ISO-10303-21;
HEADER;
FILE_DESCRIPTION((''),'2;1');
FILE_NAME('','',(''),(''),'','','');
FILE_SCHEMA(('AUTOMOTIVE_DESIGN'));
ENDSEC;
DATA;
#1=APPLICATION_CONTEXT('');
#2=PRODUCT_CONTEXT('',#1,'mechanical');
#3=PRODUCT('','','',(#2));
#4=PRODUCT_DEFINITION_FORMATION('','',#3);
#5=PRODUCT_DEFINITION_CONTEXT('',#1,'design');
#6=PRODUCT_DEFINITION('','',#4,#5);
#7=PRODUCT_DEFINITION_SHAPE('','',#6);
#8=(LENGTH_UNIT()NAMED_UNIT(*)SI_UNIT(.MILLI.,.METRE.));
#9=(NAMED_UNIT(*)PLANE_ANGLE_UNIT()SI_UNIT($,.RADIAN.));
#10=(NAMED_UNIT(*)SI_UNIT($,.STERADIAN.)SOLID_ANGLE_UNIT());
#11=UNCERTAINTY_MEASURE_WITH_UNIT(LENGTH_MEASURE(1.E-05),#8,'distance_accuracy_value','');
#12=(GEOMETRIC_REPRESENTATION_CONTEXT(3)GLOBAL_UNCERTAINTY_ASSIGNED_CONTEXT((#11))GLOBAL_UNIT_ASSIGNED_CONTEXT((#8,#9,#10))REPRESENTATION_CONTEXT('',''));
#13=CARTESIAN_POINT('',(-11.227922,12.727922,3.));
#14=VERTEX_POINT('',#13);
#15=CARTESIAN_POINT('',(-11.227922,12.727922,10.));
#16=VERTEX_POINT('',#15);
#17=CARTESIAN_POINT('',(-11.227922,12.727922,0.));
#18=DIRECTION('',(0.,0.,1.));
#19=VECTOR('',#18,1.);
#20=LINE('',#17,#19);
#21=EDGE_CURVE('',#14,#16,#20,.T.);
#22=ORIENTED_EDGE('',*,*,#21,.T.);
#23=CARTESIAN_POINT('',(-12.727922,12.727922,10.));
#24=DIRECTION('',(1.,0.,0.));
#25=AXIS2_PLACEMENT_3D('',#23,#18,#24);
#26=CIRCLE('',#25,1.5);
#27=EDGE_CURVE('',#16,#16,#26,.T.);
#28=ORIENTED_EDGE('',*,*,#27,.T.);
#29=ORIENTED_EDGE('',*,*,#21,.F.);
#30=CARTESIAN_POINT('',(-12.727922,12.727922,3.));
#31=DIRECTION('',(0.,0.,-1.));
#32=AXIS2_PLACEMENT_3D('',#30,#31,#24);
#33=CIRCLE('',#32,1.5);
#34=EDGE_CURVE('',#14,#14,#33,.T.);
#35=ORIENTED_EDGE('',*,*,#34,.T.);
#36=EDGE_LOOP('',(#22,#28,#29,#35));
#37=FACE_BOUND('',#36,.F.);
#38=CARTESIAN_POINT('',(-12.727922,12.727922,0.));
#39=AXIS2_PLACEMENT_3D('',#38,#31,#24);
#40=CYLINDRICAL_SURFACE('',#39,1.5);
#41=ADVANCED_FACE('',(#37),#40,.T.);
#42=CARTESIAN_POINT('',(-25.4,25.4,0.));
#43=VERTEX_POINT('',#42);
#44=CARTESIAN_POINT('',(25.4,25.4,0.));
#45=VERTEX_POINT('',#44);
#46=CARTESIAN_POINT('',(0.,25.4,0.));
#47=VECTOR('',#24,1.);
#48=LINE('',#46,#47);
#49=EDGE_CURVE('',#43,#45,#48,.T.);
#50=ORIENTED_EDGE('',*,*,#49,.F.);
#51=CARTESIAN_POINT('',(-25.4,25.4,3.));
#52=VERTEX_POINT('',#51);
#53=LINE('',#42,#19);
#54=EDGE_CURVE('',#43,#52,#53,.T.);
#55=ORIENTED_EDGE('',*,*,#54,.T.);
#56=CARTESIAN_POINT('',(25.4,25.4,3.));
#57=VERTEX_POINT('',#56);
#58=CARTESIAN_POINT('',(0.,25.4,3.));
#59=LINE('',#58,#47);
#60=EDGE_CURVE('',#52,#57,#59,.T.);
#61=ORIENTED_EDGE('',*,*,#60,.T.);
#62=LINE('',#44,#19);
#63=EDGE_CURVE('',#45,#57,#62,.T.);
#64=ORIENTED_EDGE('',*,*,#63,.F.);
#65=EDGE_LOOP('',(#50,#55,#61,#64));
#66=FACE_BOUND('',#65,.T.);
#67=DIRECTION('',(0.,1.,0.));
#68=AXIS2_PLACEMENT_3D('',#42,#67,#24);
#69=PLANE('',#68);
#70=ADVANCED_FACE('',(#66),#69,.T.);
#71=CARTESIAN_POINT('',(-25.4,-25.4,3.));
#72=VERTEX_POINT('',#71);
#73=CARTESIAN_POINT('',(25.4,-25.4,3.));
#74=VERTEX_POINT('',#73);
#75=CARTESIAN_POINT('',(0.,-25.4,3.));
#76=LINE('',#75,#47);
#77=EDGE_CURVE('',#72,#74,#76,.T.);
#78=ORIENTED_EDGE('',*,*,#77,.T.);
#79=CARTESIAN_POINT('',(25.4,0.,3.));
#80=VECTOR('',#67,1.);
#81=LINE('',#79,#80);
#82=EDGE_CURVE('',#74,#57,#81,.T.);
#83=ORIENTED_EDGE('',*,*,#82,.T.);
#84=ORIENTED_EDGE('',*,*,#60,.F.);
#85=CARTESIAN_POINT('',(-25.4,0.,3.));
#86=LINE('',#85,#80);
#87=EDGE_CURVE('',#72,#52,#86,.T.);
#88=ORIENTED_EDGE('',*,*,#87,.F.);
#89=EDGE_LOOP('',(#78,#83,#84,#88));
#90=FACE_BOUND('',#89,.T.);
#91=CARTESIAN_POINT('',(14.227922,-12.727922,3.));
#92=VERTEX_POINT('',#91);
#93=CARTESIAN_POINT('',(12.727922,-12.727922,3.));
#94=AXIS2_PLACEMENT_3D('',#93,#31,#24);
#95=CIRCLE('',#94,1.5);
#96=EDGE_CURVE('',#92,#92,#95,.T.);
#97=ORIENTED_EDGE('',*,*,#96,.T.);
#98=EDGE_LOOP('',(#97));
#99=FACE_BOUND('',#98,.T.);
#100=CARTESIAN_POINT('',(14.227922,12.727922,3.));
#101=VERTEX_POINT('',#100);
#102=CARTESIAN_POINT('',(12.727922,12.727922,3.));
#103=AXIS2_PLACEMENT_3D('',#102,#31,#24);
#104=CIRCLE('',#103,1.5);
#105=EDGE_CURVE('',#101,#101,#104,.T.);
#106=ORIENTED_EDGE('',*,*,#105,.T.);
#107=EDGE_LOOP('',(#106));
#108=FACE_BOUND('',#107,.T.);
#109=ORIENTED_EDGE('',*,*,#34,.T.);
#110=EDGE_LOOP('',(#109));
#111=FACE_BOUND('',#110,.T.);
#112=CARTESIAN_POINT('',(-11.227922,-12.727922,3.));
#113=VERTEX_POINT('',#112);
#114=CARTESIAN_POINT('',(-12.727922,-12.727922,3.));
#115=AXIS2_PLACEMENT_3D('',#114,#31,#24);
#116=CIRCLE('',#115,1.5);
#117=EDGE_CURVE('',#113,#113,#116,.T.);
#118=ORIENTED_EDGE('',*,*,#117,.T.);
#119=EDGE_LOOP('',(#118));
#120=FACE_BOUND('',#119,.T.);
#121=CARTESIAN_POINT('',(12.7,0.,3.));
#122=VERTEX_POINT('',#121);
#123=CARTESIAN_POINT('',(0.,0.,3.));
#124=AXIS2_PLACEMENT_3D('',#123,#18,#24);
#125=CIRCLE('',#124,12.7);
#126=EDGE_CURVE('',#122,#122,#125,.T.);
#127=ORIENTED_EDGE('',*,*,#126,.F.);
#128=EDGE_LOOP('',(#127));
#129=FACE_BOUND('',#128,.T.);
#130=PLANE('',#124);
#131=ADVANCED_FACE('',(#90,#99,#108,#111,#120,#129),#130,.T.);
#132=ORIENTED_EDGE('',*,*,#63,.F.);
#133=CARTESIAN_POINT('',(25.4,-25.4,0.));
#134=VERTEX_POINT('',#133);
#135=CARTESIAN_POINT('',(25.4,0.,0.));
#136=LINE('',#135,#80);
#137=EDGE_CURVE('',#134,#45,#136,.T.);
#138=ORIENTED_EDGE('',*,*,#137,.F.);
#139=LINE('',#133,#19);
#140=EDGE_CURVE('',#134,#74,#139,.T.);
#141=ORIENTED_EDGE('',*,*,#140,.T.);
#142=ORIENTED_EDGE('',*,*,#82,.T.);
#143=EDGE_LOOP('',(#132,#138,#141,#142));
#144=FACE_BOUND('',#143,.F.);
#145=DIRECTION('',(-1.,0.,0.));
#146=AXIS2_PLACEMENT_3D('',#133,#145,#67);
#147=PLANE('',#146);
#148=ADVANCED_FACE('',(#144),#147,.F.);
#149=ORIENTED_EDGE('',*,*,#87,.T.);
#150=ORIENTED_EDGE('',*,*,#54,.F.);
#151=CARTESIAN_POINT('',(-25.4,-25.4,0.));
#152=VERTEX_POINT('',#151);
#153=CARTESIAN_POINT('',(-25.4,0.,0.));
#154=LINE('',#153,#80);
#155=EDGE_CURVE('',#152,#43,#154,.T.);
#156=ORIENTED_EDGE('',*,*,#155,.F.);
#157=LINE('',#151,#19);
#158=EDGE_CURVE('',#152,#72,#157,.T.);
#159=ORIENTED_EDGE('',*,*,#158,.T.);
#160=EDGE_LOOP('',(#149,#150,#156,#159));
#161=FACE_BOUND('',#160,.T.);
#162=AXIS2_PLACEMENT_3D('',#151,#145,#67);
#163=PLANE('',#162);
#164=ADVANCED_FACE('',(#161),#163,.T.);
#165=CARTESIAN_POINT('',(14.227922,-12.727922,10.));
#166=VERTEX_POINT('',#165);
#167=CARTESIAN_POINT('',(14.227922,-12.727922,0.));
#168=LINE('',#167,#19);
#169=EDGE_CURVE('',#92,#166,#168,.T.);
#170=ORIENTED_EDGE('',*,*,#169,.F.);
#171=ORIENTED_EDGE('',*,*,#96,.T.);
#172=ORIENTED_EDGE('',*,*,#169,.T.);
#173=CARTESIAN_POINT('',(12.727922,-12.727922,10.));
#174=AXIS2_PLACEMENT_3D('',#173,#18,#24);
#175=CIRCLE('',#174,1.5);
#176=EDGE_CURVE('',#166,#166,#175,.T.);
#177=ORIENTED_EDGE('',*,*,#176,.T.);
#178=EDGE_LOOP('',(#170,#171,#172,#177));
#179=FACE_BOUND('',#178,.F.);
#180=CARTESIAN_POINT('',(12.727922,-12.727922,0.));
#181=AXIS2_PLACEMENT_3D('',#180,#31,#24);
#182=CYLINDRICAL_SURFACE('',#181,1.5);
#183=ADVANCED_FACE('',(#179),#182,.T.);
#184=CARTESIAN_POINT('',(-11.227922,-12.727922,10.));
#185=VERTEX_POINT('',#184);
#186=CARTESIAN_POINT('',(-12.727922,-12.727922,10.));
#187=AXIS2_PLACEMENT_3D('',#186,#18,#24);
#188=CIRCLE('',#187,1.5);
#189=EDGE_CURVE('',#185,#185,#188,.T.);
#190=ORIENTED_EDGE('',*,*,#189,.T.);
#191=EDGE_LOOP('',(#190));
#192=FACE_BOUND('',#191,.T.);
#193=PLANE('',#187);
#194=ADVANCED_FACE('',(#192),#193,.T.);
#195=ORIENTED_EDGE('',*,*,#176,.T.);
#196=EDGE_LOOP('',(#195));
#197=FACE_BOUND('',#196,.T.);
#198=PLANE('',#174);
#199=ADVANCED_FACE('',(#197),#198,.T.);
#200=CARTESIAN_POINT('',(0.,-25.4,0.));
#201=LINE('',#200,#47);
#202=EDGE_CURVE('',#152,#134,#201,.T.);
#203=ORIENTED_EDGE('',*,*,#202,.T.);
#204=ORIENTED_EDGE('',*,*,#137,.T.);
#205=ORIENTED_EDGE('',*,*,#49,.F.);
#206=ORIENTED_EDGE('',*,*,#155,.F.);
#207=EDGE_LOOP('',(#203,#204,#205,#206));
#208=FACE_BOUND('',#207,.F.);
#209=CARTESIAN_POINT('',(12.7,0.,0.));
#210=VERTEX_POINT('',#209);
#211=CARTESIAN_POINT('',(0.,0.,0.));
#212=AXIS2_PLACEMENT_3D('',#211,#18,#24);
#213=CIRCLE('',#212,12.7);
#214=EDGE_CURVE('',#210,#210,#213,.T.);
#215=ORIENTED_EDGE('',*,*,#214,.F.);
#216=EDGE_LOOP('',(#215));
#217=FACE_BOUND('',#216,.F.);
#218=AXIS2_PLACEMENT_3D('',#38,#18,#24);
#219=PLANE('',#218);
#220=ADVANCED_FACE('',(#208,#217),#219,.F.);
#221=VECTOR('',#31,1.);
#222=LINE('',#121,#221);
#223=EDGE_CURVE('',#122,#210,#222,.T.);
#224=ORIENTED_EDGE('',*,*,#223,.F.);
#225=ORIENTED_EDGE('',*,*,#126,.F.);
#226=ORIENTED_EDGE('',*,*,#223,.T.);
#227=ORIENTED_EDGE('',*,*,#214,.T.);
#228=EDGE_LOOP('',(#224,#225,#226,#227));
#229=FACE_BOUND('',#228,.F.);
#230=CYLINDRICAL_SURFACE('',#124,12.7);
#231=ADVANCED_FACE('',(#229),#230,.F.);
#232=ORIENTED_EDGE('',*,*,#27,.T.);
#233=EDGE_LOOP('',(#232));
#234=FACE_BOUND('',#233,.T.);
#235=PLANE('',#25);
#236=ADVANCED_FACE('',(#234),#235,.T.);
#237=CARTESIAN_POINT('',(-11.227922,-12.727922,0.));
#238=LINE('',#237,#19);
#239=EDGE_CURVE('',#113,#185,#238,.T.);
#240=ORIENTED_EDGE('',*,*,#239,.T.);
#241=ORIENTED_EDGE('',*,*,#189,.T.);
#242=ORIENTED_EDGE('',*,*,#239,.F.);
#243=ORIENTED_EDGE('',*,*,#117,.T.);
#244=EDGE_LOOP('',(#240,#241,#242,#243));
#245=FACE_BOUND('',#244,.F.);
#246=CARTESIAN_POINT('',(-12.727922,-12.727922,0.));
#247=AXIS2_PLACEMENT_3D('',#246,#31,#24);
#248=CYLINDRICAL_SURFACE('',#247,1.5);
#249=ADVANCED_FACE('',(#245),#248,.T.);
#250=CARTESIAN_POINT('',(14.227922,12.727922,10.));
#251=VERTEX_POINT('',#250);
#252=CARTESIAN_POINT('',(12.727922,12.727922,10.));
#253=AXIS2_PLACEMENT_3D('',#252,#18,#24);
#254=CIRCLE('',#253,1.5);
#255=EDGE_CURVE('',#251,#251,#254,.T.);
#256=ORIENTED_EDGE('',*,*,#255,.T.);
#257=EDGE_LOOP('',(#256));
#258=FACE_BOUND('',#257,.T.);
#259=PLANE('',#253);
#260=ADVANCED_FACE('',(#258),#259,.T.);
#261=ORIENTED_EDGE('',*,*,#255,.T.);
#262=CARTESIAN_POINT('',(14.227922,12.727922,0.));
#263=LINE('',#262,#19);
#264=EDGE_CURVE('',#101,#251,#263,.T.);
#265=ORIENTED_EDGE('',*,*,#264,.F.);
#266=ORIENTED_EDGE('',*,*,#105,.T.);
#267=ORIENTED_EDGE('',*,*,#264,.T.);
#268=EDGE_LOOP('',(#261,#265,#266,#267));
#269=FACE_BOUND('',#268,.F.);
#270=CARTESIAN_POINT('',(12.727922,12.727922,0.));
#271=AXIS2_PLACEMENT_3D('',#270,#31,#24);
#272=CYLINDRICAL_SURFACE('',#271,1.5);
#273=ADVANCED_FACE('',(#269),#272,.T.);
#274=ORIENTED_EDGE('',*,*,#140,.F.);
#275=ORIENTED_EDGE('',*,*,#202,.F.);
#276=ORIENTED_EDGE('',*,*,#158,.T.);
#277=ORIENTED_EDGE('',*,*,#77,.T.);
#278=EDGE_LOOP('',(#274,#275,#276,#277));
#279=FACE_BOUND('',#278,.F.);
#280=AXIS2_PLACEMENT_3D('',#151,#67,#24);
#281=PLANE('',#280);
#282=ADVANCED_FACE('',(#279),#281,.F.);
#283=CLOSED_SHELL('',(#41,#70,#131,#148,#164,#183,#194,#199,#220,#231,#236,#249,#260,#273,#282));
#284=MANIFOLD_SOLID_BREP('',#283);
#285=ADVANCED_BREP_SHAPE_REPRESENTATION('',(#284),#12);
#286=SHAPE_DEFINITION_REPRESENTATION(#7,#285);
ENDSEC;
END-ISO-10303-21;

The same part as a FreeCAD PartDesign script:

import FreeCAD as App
import Part
import Sketcher

V = App.Vector


def add_polygon(sketch, points):
    """Adds a closed chain of lines whose ends are joined by coincident constraints."""
    first, n = sketch.GeometryCount, len(points)
    for a, b in zip(points, points[1:] + points[:1]):
        sketch.addGeometry(Part.LineSegment(App.Vector(*a, 0), App.Vector(*b, 0)), False)
    for i in range(n):
        sketch.addConstraint(Sketcher.Constraint("Coincident", first + i, 2, first + (i + 1) % n, 1))

doc = App.newDocument("Part")
body = doc.addObject("PartDesign::Body", "Body")

# Sketch on XY plane
sketch1 = doc.addObject("Sketcher::SketchObject", "Sketch")
body.addObject(sketch1)
sketch1.AttachmentSupport = (doc.XY_Plane, [""])
sketch1.MapMode = "FlatFace"
add_polygon(sketch1, [(-25, 25), (-25, -25), (25, -25), (25, 25)])  # lines 0-3
sketch1.addConstraint([
    Sketcher.Constraint("Vertical", 0),
    Sketcher.Constraint("Horizontal", 1),
    Sketcher.Constraint("Vertical", 2),
    Sketcher.Constraint("Horizontal", 3),
    Sketcher.Constraint("Symmetric", 0, 2, 2, 2, -1, 1),
    Sketcher.Constraint("Equal", 3, 0),
    Sketcher.Constraint("DistanceX", 1, 1, 1, 2, 50.8),
])
pad1 = doc.addObject("PartDesign::Pad", "Pad")
body.addObject(pad1)
pad1.Profile = sketch1
pad1.Length = 3

# Sketch on XY plane
sketch2 = doc.addObject("Sketcher::SketchObject", "Sketch001")
body.addObject(sketch2)
sketch2.AttachmentSupport = (doc.XY_Plane, [""])
sketch2.MapMode = "FlatFace"
sketch2.addGeometry([
    Part.Circle(V(-12.7, 12.7, 0), V(0, 0, 1), 1.5),
    Part.Circle(V(-12.7, -12.7, 0), V(0, 0, 1), 1.5),
    Part.Circle(V(12.7, -12.7, 0), V(0, 0, 1), 1.5),
    Part.Circle(V(12.7, 12.7, 0), V(0, 0, 1), 1.5),
], False)
sketch2.addConstraint([
    Sketcher.Constraint("Equal", 0, 1),
    Sketcher.Constraint("Equal", 1, 2),
    Sketcher.Constraint("Equal", 2, 3),
    Sketcher.Constraint("Symmetric", 0, 3, 2, 3, -1, 1),
    Sketcher.Constraint("Symmetric", 1, 3, 3, 3, -1, 1),
    Sketcher.Constraint("Symmetric", 1, 3, 2, 3, -2),
    Sketcher.Constraint("Diameter", 0, 3.0),
    Sketcher.Constraint("DistanceX", 0, 3, -1, 1, 12.727922),
    Sketcher.Constraint("DistanceY", -1, 1, 0, 3, 12.727922),
])
pad2 = doc.addObject("PartDesign::Pad", "Pad001")
body.addObject(pad2)
pad2.Profile = sketch2
pad2.Length = 10

# Sketch on XY plane
sketch3 = doc.addObject("Sketcher::SketchObject", "Sketch002")
body.addObject(sketch3)
sketch3.AttachmentSupport = (doc.XY_Plane, [""])
sketch3.MapMode = "FlatFace"
sketch3.AttachmentOffset = App.Placement(V(0, 0, 3), App.Rotation())
sketch3.addGeometry(Part.Circle(V(0, 0, 0), V(0, 0, 1), 13), False)
sketch3.addConstraint([
    Sketcher.Constraint("Coincident", 0, 3, -1, 1),
    Sketcher.Constraint("Diameter", 0, 25.4),
])
pocket1 = doc.addObject("PartDesign::Pocket", "Pocket")
body.addObject(pocket1)
pocket1.Profile = sketch3
pocket1.Length = 25.4

doc.recompute()
